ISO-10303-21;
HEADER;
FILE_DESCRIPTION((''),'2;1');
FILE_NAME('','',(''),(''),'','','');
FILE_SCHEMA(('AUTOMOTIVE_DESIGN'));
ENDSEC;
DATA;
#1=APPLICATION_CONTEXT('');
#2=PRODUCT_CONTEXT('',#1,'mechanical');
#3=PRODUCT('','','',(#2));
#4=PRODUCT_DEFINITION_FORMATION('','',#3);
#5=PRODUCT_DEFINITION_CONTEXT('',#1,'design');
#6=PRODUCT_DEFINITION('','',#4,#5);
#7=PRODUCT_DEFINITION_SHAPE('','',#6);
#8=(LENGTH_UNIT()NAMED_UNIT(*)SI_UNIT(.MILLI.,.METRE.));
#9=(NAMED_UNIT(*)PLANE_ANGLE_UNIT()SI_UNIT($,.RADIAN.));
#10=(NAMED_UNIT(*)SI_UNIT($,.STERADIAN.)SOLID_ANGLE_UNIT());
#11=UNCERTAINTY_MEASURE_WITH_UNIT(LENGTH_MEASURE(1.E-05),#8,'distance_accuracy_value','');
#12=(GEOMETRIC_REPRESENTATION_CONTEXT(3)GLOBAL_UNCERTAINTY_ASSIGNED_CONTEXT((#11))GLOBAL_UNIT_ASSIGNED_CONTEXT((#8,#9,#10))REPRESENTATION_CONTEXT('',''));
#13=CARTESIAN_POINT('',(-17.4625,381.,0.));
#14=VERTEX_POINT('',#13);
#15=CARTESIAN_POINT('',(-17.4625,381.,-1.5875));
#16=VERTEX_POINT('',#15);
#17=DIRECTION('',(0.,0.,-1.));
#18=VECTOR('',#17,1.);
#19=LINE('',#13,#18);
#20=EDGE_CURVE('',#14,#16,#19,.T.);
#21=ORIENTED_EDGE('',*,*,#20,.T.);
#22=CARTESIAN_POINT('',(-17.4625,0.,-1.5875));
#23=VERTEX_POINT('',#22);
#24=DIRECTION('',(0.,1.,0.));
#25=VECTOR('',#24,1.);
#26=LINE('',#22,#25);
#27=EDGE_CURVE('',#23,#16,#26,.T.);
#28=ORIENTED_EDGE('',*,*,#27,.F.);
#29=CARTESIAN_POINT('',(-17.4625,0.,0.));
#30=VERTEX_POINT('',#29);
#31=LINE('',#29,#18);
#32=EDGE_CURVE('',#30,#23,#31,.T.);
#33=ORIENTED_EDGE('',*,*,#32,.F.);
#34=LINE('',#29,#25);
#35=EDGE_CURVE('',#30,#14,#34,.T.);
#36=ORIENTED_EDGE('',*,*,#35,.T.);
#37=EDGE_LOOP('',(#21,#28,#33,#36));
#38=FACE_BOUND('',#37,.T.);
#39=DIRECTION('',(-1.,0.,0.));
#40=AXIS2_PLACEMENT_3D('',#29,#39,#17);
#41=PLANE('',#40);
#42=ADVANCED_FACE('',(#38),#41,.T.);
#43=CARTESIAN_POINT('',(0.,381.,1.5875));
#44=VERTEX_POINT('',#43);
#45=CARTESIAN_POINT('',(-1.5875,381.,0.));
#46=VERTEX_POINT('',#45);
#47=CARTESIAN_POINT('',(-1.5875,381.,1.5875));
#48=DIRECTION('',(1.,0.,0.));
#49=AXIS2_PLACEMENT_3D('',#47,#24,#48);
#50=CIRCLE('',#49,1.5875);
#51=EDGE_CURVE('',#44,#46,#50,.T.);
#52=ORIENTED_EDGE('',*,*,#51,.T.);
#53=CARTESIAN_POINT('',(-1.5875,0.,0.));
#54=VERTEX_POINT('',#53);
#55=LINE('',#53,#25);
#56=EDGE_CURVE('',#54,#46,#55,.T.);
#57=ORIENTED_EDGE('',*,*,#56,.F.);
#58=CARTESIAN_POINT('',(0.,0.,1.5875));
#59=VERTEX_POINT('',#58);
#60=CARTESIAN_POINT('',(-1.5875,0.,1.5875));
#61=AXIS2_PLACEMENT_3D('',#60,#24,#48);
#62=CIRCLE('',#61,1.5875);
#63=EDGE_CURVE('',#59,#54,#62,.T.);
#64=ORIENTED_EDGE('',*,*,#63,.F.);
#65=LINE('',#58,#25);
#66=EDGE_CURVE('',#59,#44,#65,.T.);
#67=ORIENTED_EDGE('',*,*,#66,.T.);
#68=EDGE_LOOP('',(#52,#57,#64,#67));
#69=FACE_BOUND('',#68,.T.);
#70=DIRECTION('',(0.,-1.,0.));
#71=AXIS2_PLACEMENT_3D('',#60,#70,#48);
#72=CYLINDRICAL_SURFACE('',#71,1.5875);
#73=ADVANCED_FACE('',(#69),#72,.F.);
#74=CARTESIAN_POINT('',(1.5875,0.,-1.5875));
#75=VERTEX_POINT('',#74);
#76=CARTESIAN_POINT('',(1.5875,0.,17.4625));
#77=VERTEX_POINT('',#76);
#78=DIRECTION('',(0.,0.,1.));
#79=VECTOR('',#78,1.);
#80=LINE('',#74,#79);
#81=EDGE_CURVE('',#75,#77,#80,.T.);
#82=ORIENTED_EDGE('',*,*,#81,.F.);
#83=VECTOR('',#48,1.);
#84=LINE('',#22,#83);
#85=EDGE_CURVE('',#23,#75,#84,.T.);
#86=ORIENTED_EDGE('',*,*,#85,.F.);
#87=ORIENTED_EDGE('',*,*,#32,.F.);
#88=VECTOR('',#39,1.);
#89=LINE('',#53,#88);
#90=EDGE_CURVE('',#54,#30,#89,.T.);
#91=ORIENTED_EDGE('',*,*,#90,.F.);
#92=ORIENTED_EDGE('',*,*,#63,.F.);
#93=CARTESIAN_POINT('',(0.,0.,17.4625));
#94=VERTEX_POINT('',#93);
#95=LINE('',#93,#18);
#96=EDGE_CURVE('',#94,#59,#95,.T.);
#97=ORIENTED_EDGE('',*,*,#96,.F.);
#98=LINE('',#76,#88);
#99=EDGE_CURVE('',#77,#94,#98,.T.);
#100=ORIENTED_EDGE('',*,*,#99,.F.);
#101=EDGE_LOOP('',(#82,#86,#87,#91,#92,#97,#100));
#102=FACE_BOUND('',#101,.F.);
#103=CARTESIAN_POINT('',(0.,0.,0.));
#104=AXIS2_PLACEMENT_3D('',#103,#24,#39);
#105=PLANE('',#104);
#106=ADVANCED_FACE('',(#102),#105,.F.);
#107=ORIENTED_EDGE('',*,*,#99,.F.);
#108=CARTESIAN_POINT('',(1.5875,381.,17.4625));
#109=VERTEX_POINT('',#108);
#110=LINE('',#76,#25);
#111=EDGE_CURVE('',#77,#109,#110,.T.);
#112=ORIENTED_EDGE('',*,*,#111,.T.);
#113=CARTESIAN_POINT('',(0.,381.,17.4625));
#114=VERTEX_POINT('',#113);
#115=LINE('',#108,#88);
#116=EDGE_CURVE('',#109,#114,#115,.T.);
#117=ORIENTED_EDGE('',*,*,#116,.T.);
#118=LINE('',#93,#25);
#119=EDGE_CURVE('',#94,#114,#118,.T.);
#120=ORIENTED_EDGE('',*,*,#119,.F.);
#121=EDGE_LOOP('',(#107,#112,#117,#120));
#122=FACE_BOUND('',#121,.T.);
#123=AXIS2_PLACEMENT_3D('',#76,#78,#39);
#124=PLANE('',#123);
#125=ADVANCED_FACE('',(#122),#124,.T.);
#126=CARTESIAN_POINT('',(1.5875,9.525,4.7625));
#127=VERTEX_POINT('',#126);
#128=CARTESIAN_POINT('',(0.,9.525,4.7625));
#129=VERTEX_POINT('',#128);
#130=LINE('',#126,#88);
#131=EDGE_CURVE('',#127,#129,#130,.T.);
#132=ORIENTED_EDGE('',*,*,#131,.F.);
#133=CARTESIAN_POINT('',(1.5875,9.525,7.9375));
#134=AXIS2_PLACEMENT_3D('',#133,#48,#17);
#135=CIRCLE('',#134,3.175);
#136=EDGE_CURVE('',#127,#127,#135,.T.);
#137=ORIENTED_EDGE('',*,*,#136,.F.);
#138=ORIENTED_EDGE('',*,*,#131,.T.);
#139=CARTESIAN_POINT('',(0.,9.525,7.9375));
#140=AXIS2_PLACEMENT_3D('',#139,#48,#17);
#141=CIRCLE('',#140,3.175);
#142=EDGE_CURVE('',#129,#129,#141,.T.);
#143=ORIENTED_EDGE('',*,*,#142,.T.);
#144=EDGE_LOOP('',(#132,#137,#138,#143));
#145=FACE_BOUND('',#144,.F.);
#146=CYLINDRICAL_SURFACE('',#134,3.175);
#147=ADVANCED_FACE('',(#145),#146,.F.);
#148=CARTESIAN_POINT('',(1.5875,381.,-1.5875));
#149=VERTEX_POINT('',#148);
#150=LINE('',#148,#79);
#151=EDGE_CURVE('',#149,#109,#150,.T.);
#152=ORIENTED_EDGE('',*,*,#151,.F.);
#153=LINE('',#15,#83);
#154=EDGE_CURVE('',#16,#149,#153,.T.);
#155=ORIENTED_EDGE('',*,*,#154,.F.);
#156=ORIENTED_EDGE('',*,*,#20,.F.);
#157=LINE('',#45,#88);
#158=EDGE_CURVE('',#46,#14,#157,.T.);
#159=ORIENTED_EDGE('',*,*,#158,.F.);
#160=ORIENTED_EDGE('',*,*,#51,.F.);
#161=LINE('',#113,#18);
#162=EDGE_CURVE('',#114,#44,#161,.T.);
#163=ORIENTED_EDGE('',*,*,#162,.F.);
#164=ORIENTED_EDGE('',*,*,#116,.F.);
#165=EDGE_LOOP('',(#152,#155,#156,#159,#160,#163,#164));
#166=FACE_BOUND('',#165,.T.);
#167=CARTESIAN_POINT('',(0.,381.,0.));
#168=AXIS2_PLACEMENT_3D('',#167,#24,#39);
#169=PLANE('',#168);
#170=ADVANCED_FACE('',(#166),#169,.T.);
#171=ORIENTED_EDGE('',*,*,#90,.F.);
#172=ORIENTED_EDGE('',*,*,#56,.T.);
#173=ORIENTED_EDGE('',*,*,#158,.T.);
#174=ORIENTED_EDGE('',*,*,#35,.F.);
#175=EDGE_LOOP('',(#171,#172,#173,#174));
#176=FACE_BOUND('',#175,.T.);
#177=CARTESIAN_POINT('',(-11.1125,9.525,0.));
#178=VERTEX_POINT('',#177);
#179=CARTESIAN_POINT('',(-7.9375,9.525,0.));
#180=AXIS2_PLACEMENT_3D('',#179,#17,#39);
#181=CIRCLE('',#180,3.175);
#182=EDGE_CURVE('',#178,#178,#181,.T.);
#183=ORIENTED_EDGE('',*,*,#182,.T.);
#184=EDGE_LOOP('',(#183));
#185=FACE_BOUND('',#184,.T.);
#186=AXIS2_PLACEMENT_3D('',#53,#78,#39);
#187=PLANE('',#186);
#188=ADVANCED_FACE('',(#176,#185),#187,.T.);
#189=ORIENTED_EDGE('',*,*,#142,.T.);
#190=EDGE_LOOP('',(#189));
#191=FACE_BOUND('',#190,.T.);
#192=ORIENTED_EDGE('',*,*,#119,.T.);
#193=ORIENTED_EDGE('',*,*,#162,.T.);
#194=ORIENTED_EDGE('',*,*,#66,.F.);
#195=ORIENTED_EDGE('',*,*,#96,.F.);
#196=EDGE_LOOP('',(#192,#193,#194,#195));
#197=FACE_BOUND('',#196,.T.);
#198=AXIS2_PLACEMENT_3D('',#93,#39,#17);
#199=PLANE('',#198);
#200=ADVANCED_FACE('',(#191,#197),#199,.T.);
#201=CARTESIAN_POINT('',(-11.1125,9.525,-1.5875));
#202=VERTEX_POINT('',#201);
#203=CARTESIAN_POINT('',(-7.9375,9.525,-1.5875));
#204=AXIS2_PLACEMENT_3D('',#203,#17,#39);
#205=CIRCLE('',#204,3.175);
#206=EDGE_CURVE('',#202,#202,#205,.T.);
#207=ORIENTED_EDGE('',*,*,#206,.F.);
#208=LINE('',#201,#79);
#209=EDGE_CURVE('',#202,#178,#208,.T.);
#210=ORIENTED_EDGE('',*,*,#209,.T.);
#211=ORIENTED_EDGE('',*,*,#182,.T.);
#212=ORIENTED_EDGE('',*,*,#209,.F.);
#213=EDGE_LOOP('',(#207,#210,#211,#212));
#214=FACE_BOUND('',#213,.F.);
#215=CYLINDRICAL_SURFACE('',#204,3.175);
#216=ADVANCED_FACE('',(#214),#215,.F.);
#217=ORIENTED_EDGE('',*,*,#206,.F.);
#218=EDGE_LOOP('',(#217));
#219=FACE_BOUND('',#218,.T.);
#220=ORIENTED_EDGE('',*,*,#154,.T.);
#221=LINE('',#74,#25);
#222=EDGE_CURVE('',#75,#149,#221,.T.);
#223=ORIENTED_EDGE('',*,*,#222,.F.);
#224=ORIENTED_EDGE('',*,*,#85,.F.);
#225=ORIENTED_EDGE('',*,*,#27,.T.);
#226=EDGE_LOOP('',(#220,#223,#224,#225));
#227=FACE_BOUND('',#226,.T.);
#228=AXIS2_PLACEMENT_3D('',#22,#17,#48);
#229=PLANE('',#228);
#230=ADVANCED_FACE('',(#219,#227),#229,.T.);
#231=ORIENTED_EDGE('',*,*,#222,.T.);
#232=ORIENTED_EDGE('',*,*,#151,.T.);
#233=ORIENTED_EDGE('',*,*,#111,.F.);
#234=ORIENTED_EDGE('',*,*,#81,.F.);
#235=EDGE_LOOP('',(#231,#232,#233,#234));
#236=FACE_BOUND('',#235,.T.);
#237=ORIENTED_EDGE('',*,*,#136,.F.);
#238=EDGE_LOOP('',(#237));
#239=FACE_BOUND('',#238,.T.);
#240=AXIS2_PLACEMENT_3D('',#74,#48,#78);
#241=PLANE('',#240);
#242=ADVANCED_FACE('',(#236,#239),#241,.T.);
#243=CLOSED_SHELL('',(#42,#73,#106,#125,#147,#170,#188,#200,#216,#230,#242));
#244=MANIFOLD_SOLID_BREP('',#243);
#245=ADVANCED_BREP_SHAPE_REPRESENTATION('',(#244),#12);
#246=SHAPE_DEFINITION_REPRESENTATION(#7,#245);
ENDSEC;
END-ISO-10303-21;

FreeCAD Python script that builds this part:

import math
import FreeCAD as App
import Part
import Sketcher

V = App.Vector
Q = App.Units.Quantity

doc = App.newDocument("Part")
params = doc.addObject("Spreadsheet::Sheet", "Params")
for row, (alias, value) in enumerate([
    ("sketch1_radius", "0.0625 in"),
    ("sketch1_width", "0.75 in"),
    ("sketch1_width2", "0.0625 in"),
    ("pad1_length", "15 in"),
    ("sketch2_diameter", "0.25 in"),
    ("sketch3_diameter", "0.25 in"),
], start=1):
    params.set(f"A{row}", alias)
    params.set(f"B{row}", "=" + value)
    params.setAlias(f"B{row}", alias)

body = doc.addObject("PartDesign::Body", "Body")

# Sketch on XZ plane
sketch1 = doc.addObject("Sketcher::SketchObject", "Sketch")
body.addObject(sketch1)
sketch1.AttachmentSupport = (doc.XZ_Plane, [""])
sketch1.MapMode = "FlatFace"
sketch1.addGeometry([
    Part.LineSegment(V(0, 1.6, 0), V(0, 17.5, 0)),  # 0
    Part.LineSegment(V(0, 17.5, 0), V(1.6, 17.5, 0)),  # 1
    Part.LineSegment(V(1.6, 17.5, 0), V(1.6, -1.6, 0)),  # 2
    Part.LineSegment(V(1.6, -1.6, 0), V(-17.5, -1.6, 0)),  # 3
    Part.LineSegment(V(-17.5, -1.6, 0), V(-17.5, 0, 0)),  # 4
    Part.LineSegment(V(-17.5, 0, 0), V(-1.6, 0, 0)),  # 5
    Part.ArcOfCircle(Part.Circle(V(-1.6, 1.6, 0), V(0, 0, 1), 1.6), math.radians(-90), math.radians(0)),  # 6
], False)
sketch1.addConstraint([
    Sketcher.Constraint("Coincident", 0, 2, 1, 1),
    Sketcher.Constraint("Coincident", 1, 2, 2, 1),
    Sketcher.Constraint("Coincident", 2, 2, 3, 1),
    Sketcher.Constraint("Coincident", 3, 2, 4, 1),
    Sketcher.Constraint("Coincident", 4, 2, 5, 1),
    Sketcher.Constraint("Tangent", 5, 2, 6, 1),
    Sketcher.Constraint("Tangent", 6, 2, 0, 1),
    Sketcher.Constraint("Vertical", 0),
    Sketcher.Constraint("Horizontal", 1),
    Sketcher.Constraint("Vertical", 2),
    Sketcher.Constraint("Horizontal", 3),
    Sketcher.Constraint("Vertical", 4),
    Sketcher.Constraint("Horizontal", 5),
    Sketcher.Constraint("PointOnObject", 0, 2, -2),
    Sketcher.Constraint("PointOnObject", 4, 2, -1),
    Sketcher.Constraint("Equal", 5, 0),
    Sketcher.Constraint("Equal", 3, 2),
    Sketcher.Constraint("Radius", 6, Q("0.0625 in")),
    Sketcher.Constraint("DistanceX", 3, 2, 3, 1, Q("0.75 in")),
    Sketcher.Constraint("DistanceX", 1, 1, 1, 2, Q("0.0625 in")),
])
sketch1.setExpression("Constraints[17]", "Params.sketch1_radius")
sketch1.setExpression("Constraints[18]", "Params.sketch1_width")
sketch1.setExpression("Constraints[19]", "Params.sketch1_width2")
pad1 = doc.addObject("PartDesign::Pad", "Pad")
body.addObject(pad1)
pad1.Profile = sketch1
pad1.setExpression("Length", "Params.pad1_length")
pad1.Reversed = True

# Sketch on XY plane
sketch2 = doc.addObject("Sketcher::SketchObject", "Sketch001")
body.addObject(sketch2)
sketch2.AttachmentSupport = (doc.XY_Plane, [""])
sketch2.MapMode = "FlatFace"
sketch2.AttachmentOffset = App.Placement(V(0, 0, -0.0625 * 25.4), App.Rotation())
sketch2.addGeometry(Part.Circle(V(-7.9, 9.5, 0), V(0, 0, 1), 3.2), False)
sketch2.addConstraint([
    Sketcher.Constraint("Diameter", 0, Q("0.25 in")),
    Sketcher.Constraint("DistanceY", -1, 1, 0, 3, Q("0.375 in")),
    Sketcher.Constraint("DistanceX", 0, 3, -1, 1, Q("0.3125 in")),
])
sketch2.setExpression("Constraints[0]", "Params.sketch2_diameter")
pocket1 = doc.addObject("PartDesign::Pocket", "Pocket")
body.addObject(pocket1)
pocket1.Profile = sketch2
pocket1.Type = "ThroughAll"
pocket1.Reversed = True

# Sketch on YZ plane
sketch3 = doc.addObject("Sketcher::SketchObject", "Sketch002")
body.addObject(sketch3)
sketch3.AttachmentSupport = (doc.YZ_Plane, [""])
sketch3.MapMode = "FlatFace"
sketch3.AttachmentOffset = App.Placement(V(0, 0, 0.0625 * 25.4), App.Rotation())
sketch3.addGeometry(Part.Circle(V(9.5, 7.9, 0), V(0, 0, 1), 3.2), False)
sketch3.addConstraint([
    Sketcher.Constraint("Diameter", 0, Q("0.25 in")),
    Sketcher.Constraint("DistanceX", -1, 1, 0, 3, Q("0.375 in")),
    Sketcher.Constraint("DistanceY", -1, 1, 0, 3, Q("0.3125 in")),
])
sketch3.setExpression("Constraints[0]", "Params.sketch3_diameter")
pocket2 = doc.addObject("PartDesign::Pocket", "Pocket001")
body.addObject(pocket2)
pocket2.Profile = sketch3
pocket2.Type = "ThroughAll"

doc.recompute()
